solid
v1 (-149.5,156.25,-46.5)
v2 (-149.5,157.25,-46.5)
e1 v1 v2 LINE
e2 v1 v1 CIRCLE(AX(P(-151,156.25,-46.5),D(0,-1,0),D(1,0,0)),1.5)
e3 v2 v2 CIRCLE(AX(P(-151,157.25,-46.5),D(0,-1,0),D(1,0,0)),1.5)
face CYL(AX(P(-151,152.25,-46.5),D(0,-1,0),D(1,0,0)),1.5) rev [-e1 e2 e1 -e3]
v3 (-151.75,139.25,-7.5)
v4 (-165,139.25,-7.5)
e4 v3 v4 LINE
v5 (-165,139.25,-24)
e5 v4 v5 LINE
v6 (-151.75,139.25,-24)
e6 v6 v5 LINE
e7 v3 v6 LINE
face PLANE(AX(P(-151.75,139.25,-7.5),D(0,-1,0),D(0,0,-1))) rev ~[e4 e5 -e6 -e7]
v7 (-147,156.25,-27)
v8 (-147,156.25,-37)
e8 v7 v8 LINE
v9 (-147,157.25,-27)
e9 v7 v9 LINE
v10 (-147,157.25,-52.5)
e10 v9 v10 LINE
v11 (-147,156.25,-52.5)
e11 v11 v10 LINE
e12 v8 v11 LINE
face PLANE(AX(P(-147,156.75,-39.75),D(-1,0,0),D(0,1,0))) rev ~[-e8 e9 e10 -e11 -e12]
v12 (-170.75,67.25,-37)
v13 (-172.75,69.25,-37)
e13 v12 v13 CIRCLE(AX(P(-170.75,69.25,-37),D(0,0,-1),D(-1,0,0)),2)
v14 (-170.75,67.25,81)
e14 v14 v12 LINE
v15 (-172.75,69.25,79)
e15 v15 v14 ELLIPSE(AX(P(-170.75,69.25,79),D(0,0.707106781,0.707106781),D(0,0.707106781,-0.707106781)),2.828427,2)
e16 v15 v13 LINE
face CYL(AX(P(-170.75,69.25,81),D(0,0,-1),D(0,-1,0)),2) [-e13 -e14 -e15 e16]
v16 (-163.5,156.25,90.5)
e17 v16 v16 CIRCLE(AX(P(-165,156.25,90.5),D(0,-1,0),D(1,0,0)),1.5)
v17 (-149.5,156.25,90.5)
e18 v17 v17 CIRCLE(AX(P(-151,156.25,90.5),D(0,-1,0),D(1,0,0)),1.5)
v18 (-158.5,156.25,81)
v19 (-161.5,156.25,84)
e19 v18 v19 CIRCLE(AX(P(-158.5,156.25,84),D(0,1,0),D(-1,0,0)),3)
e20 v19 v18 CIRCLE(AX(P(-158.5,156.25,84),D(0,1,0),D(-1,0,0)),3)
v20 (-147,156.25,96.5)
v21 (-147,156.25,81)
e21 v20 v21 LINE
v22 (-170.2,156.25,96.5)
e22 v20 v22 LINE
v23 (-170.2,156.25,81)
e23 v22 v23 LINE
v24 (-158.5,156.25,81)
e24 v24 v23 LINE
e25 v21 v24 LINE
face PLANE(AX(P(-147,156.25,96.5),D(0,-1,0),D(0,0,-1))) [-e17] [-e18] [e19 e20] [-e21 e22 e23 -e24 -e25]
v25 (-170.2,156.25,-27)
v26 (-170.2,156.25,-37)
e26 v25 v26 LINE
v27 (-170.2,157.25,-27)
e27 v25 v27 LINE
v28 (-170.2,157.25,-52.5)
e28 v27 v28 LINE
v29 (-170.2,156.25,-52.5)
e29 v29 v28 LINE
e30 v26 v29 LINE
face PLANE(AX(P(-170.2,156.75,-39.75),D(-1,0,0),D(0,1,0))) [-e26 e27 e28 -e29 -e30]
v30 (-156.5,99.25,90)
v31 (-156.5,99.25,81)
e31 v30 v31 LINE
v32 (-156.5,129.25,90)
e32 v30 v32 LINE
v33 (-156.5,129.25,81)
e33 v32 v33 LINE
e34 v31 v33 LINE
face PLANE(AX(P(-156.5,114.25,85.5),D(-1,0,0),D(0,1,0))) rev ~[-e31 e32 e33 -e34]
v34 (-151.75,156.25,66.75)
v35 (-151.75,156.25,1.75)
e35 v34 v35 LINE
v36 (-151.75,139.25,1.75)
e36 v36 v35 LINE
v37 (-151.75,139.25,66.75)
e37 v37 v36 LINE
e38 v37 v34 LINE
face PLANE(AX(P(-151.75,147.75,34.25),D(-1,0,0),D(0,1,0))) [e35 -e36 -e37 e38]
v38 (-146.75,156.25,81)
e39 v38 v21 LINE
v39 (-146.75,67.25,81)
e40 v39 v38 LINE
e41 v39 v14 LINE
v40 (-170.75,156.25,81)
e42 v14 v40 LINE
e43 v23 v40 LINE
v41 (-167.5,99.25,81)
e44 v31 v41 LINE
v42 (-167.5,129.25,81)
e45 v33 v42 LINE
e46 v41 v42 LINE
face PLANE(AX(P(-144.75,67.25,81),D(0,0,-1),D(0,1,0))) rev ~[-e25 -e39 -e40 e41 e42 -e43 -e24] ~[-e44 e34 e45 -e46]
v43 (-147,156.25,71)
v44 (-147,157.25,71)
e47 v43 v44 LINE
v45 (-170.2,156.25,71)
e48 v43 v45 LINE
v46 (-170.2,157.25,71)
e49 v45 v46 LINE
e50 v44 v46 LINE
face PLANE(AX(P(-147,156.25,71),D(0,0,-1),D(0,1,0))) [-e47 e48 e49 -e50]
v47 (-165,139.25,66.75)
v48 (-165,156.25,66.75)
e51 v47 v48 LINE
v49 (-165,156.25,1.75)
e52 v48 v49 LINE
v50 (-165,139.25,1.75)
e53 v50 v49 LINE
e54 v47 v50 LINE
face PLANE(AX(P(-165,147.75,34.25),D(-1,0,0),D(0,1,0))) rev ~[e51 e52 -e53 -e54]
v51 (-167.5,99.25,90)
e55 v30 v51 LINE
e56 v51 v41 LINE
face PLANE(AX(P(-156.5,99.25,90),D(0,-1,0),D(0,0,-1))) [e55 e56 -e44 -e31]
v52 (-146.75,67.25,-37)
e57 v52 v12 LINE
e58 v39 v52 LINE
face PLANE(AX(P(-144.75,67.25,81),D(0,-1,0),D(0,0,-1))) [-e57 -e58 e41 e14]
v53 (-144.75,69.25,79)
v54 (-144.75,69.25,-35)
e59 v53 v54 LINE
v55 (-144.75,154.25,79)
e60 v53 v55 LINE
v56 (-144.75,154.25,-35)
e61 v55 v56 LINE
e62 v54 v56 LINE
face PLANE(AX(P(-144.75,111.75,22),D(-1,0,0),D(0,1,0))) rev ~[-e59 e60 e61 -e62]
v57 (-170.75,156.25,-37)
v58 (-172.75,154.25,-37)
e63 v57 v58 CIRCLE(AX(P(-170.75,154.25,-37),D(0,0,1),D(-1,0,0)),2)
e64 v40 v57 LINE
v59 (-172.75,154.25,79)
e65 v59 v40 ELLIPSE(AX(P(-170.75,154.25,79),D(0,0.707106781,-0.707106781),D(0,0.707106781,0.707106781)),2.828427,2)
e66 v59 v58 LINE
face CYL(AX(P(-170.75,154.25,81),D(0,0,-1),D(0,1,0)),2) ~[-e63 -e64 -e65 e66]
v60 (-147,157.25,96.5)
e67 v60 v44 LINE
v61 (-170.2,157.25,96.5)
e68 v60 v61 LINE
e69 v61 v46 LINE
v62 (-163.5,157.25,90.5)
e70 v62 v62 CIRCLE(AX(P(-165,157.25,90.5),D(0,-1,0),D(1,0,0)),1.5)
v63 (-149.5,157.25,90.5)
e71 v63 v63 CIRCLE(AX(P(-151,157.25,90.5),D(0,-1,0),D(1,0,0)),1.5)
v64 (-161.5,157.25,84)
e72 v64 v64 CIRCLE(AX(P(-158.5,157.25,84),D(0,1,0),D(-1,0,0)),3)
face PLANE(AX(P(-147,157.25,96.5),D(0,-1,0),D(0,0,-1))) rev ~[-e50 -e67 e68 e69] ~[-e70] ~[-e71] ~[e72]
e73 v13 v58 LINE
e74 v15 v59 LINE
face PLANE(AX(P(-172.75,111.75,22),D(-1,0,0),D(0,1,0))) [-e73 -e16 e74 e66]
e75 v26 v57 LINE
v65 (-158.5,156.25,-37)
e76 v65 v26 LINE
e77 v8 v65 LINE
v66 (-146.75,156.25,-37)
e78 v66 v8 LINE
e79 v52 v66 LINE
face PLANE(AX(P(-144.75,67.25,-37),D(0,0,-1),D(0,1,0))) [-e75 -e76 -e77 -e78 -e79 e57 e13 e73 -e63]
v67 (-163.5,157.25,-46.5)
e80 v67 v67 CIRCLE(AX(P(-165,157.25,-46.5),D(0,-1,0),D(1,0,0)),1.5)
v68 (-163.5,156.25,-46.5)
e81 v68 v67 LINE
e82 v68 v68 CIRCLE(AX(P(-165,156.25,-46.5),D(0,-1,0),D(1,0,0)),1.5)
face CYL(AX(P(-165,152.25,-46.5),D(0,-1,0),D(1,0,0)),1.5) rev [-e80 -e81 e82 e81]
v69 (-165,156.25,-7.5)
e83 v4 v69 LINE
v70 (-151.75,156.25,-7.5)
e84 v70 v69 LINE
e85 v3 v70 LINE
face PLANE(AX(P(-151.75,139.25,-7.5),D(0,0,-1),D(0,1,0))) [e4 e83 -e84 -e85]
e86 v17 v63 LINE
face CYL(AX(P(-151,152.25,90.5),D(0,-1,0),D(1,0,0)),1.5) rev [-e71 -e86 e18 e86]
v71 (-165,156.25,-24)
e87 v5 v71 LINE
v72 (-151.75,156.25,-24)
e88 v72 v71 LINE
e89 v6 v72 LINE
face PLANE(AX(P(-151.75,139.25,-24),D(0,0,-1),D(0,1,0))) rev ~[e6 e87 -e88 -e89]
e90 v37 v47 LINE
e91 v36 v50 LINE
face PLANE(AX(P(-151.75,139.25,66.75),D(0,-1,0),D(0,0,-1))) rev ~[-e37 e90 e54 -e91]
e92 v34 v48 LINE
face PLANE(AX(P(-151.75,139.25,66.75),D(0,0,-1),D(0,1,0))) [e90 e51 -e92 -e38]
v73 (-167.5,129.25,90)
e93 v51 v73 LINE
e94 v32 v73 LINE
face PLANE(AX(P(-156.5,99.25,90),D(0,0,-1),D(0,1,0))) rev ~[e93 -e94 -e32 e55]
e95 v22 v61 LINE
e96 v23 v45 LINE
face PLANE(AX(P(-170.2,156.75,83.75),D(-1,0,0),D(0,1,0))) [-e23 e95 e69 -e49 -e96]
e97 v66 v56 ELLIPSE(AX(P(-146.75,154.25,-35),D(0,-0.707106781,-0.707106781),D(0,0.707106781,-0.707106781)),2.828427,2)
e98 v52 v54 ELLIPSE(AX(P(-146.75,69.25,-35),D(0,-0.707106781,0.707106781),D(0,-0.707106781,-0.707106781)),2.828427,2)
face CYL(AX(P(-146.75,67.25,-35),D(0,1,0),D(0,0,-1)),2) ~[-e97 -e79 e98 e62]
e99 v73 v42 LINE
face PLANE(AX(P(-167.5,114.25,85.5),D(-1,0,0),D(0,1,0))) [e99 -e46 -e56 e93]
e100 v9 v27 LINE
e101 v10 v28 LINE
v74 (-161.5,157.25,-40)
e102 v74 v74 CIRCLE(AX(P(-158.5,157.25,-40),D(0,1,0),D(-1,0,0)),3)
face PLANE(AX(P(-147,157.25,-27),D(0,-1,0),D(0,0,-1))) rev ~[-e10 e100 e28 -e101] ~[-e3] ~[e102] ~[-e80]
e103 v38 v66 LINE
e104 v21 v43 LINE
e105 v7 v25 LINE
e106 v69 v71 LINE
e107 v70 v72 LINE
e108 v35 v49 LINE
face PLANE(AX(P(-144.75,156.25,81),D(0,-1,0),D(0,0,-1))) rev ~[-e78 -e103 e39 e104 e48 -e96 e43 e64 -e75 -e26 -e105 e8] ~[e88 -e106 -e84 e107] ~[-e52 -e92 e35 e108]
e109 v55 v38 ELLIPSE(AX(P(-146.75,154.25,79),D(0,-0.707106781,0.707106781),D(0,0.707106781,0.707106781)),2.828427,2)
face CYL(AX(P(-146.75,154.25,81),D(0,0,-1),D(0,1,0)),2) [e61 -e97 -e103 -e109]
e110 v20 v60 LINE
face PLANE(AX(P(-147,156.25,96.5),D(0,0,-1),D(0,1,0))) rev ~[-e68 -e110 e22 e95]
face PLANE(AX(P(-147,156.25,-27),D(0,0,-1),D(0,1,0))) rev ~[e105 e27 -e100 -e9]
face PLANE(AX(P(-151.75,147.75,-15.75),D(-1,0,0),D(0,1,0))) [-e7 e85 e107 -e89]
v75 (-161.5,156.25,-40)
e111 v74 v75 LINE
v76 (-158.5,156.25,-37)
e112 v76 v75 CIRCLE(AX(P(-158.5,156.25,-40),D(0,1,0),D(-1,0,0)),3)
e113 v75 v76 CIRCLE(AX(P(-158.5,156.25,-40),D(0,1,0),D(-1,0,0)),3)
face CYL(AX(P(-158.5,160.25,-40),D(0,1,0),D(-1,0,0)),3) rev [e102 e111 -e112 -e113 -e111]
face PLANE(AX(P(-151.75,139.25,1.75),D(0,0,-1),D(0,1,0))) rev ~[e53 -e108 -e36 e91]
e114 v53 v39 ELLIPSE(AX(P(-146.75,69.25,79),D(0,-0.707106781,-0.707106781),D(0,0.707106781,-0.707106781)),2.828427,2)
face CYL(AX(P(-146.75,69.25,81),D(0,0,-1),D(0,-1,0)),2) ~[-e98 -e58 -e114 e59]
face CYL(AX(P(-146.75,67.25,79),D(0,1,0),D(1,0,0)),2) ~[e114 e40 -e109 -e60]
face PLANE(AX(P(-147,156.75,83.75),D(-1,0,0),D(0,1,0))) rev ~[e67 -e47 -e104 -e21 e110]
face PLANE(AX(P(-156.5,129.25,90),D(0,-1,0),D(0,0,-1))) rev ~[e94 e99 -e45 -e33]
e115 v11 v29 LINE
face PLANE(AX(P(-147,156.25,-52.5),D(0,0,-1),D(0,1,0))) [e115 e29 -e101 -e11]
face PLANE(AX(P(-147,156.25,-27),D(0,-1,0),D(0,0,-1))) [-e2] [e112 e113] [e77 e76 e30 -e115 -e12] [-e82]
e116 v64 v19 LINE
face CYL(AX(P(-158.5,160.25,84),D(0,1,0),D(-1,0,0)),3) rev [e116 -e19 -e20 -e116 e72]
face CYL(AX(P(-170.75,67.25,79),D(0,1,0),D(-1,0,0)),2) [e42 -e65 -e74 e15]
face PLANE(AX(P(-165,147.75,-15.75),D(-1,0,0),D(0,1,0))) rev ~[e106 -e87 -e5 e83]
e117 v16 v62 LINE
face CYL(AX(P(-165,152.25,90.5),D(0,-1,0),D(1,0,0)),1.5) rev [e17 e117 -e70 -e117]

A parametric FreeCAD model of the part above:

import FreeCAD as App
import Part
import Sketcher


def edges_at(feature, points):
    """Names of the edges that pass closest to the given points."""
    edges = feature.Shape.Edges
    near = lambda p: min(range(len(edges)), key=lambda i: edges[i].distToShape(Part.Vertex(*p))[0])
    return sorted({f"Edge{near(p) + 1}" for p in points})

doc = App.newDocument("Part")
body = doc.addObject("PartDesign::Body", "Body")

sketch1 = body.newObject("Sketcher::SketchObject", "Sketch")
sketch1.AttachmentSupport = (doc.getObject("YZ_Plane"), [""])
sketch1.MapMode = "FlatFace"
sketch1.AttachmentOffset = App.Placement(App.Vector(0, 0, 85), App.Rotation())
sketch1.addGeometry(Part.Circle(App.Vector(-9.5, 20.2, 0), App.Vector(0, 0, 1), 1.5), False)
sketch1.addConstraint([
    Sketcher.Constraint("Diameter", 0, 3.0),
    Sketcher.Constraint("DistanceX", 0, 3, -1, 1, 9.5),
    Sketcher.Constraint("DistanceY", -1, 1, 0, 3, 20.25),
])
pad1 = body.newObject("PartDesign::Pad", "Pad")
pad1.Profile = sketch1
pad1.Length = 10
body2 = doc.addObject("PartDesign::Body", "Body001")

sketch2 = body2.newObject("Sketcher::SketchObject", "Sketch001")
sketch2.AttachmentSupport = (doc.getObject("YZ_Plane001"), [""])
sketch2.MapMode = "FlatFace"
sketch2.AttachmentOffset = App.Placement(App.Vector(0, 0, 85), App.Rotation())
sketch2.addGeometry(Part.Circle(App.Vector(127.5, 6.2, 0), App.Vector(0, 0, 1), 1.5), False)
sketch2.addConstraint([
    Sketcher.Constraint("Diameter", 0, 3.0),
    Sketcher.Constraint("DistanceX", -1, 1, 0, 3, 127.5),
    Sketcher.Constraint("DistanceY", -1, 1, 0, 3, 6.25),
])
pad2 = body2.newObject("PartDesign::Pad", "Pad001")
pad2.Profile = sketch2
pad2.Length = 10
body3 = doc.addObject("PartDesign::Body", "Body002")

sketch3 = body3.newObject("Sketcher::SketchObject", "Sketch002")
sketch3.AttachmentSupport = (doc.getObject("YZ_Plane002"), [""])
sketch3.MapMode = "FlatFace"
sketch3.AttachmentOffset = App.Placement(App.Vector(0, 0, 85), App.Rotation())
sketch3.addGeometry(Part.Circle(App.Vector(127.5, 20.2, 0), App.Vector(0, 0, 1), 1.5), False)
sketch3.addConstraint([
    Sketcher.Constraint("Diameter", 0, 3.0),
    Sketcher.Constraint("DistanceX", -1, 1, 0, 3, 127.5),
    Sketcher.Constraint("DistanceY", -1, 1, 0, 3, 20.25),
])
pad3 = body3.newObject("PartDesign::Pad", "Pad002")
pad3.Profile = sketch3
pad3.Length = 10
body4 = doc.addObject("PartDesign::Body", "Body003")
body4.AllowCompound = True

sketch4 = body4.newObject("Sketcher::SketchObject", "Sketch003")
sketch4.AttachmentSupport = (doc.getObject("YZ_Plane003"), [""])
sketch4.MapMode = "FlatFace"
sketch4.AttachmentOffset = App.Placement(App.Vector(0, 0, 85), App.Rotation())
sketch4.addGeometry(Part.Circle(App.Vector(-9.5, 6.2, 0), App.Vector(0, 0, 1), 1.5), False)
sketch4.addConstraint([
    Sketcher.Constraint("Diameter", 0, 3.0),
    Sketcher.Constraint("DistanceX", 0, 3, -1, 1, 9.5),
    Sketcher.Constraint("DistanceY", -1, 1, 0, 3, 6.25),
])
pad4 = body4.newObject("PartDesign::Pad", "Pad003")
pad4.Profile = sketch4
pad4.Length = 10
doc.recompute()

boolean = body4.newObject("PartDesign::Boolean", "Boolean")
boolean.Type = "Fuse"
boolean.addObjects([body])
doc.recompute()

boolean2 = body4.newObject("PartDesign::Boolean", "Boolean001")
boolean2.Type = "Fuse"
boolean2.addObjects([body2])
doc.recompute()

boolean3 = body4.newObject("PartDesign::Boolean", "Boolean002")
boolean3.Type = "Fuse"
boolean3.addObjects([body3])
body5 = doc.addObject("PartDesign::Body", "Body004")

sketch5 = body5.newObject("Sketcher::SketchObject", "Sketch004")
sketch5.AttachmentSupport = (doc.getObject("YZ_Plane004"), [""])
sketch5.MapMode = "FlatFace"
sketch5.AttachmentOffset = App.Placement(App.Vector(0, 0, 93), App.Rotation())
sketch5.addGeometry(Part.Circle(App.Vector(121, 4.5, 0), App.Vector(0, 0, 1), 3), False)
sketch5.addConstraint([
    Sketcher.Constraint("Diameter", 0, 6.0),
    Sketcher.Constraint("DistanceX", -1, 1, 0, 3, 121.0),
    Sketcher.Constraint("DistanceY", -1, 1, 0, 3, 4.5),
])
pad5 = body5.newObject("PartDesign::Pad", "Pad004")
pad5.Profile = sketch5
pad5.Length = 10
pad5.Reversed = True
body6 = doc.addObject("PartDesign::Body", "Body005")
body6.AllowCompound = True

sketch6 = body6.newObject("Sketcher::SketchObject", "Sketch005")
sketch6.AttachmentSupport = (doc.getObject("YZ_Plane005"), [""])
sketch6.MapMode = "FlatFace"
sketch6.AttachmentOffset = App.Placement(App.Vector(0, 0, 93), App.Rotation())
sketch6.addGeometry(Part.Circle(App.Vector(-3, 4.5, 0), App.Vector(0, 0, 1), 3), False)
sketch6.addConstraint([
    Sketcher.Constraint("Diameter", 0, 6.0),
    Sketcher.Constraint("DistanceX", 0, 3, -1, 1, 3.0),
    Sketcher.Constraint("DistanceY", -1, 1, 0, 3, 4.5),
])
pad6 = body6.newObject("PartDesign::Pad", "Pad005")
pad6.Profile = sketch6
pad6.Length = 10
pad6.Reversed = True
doc.recompute()

boolean4 = body6.newObject("PartDesign::Boolean", "Boolean003")
boolean4.Type = "Fuse"
boolean4.addObjects([body5])
body7 = doc.addObject("PartDesign::Body", "Body006")
body7.AllowCompound = True
doc.recompute()

body6.Placement = App.Placement(App.Vector(0, 0, 9.25), App.Rotation(App.Vector(0, 0, 1), 0))
boolean5 = body7.newObject("PartDesign::Boolean", "Boolean004")
boolean5.Type = "Fuse"
boolean5.addObjects([body6])
body8 = doc.addObject("PartDesign::Body", "Body007")

sketch7 = body8.newObject("Sketcher::SketchObject", "Sketch006")
sketch7.AttachmentSupport = (doc.getObject("XY_Plane007"), [""])
sketch7.MapMode = "FlatFace"
sketch7.AttachmentOffset = App.Placement(App.Vector(0, 0, 11.75), App.Rotation())
sketch7.addGeometry([
    Part.LineSegment(App.Vector(32, 0, 0), App.Vector(32, -9, 0)),
    Part.LineSegment(App.Vector(32, -9, 0), App.Vector(62, -9, 0)),
    Part.LineSegment(App.Vector(62, -9, 0), App.Vector(62, 0, 0)),
    Part.LineSegment(App.Vector(62, 0, 0), App.Vector(32, 0, 0)),
], False)
sketch7.addConstraint([
    Sketcher.Constraint("Coincident", 0, 2, 1, 1),
    Sketcher.Constraint("Coincident", 1, 2, 2, 1),
    Sketcher.Constraint("Coincident", 2, 2, 3, 1),
    Sketcher.Constraint("Coincident", 3, 2, 0, 1),
    Sketcher.Constraint("Vertical", 0),
    Sketcher.Constraint("Horizontal", 1),
    Sketcher.Constraint("Vertical", 2),
    Sketcher.Constraint("Horizontal", 3),
    Sketcher.Constraint("PointOnObject", 2, 2, -1),
    Sketcher.Constraint("DistanceX", 1, 1, 1, 2, 30.0),
    Sketcher.Constraint("DistanceY", 0, 2, 0, 1, 9.0),
    Sketcher.Constraint("DistanceX", -1, 1, 0, 2, 32.0),
])
pad7 = body8.newObject("PartDesign::Pad", "Pad006")
pad7.Profile = sketch7
pad7.Length = 11
body9 = doc.addObject("PartDesign::Body", "Body008")

sketch8 = body9.newObject("Sketcher::SketchObject", "Sketch007")
sketch8.AttachmentSupport = (doc.getObject("XY_Plane008"), [""])
sketch8.MapMode = "FlatFace"
sketch8.AttachmentOffset = App.Placement(App.Vector(0, 0, 2.25), App.Rotation())
sketch8.addGeometry([
    Part.LineSegment(App.Vector(89, 10, 0), App.Vector(89, -15.5, 0)),
    Part.LineSegment(App.Vector(89, -15.5, 0), App.Vector(90, -15.5, 0)),
    Part.LineSegment(App.Vector(90, -15.5, 0), App.Vector(90, 10, 0)),
    Part.LineSegment(App.Vector(90, 10, 0), App.Vector(89, 10, 0)),
], False)
sketch8.addConstraint([
    Sketcher.Constraint("Coincident", 0, 2, 1, 1),
    Sketcher.Constraint("Coincident", 1, 2, 2, 1),
    Sketcher.Constraint("Coincident", 2, 2, 3, 1),
    Sketcher.Constraint("Coincident", 3, 2, 0, 1),
    Sketcher.Constraint("Vertical", 0),
    Sketcher.Constraint("Horizontal", 1),
    Sketcher.Constraint("Vertical", 2),
    Sketcher.Constraint("Horizontal", 3),
    Sketcher.Constraint("DistanceX", 1, 1, 1, 2, 1.0),
    Sketcher.Constraint("DistanceY", 0, 2, 0, 1, 25.5),
    Sketcher.Constraint("DistanceX", -1, 1, 0, 2, 89.0),
    Sketcher.Constraint("DistanceY", -1, 1, 2, 2, 10.0),
])
pad8 = body9.newObject("PartDesign::Pad", "Pad007")
pad8.Profile = sketch8
pad8.Length = 23.2
body10 = doc.addObject("PartDesign::Body", "Body009")

sketch9 = body10.newObject("Sketcher::SketchObject", "Sketch008")
sketch9.AttachmentSupport = (doc.getObject("XY_Plane009"), [""])
sketch9.MapMode = "FlatFace"
sketch9.AttachmentOffset = App.Placement(App.Vector(0, 0, 2.25), App.Rotation())
sketch9.addGeometry([
    Part.LineSegment(App.Vector(89, 133.5, 0), App.Vector(89, 108, 0)),
    Part.LineSegment(App.Vector(89, 108, 0), App.Vector(90, 108, 0)),
    Part.LineSegment(App.Vector(90, 108, 0), App.Vector(90, 133.5, 0)),
    Part.LineSegment(App.Vector(90, 133.5, 0), App.Vector(89, 133.5, 0)),
], False)
sketch9.addConstraint([
    Sketcher.Constraint("Coincident", 0, 2, 1, 1),
    Sketcher.Constraint("Coincident", 1, 2, 2, 1),
    Sketcher.Constraint("Coincident", 2, 2, 3, 1),
    Sketcher.Constraint("Coincident", 3, 2, 0, 1),
    Sketcher.Constraint("Vertical", 0),
    Sketcher.Constraint("Horizontal", 1),
    Sketcher.Constraint("Vertical", 2),
    Sketcher.Constraint("Horizontal", 3),
    Sketcher.Constraint("DistanceX", 1, 1, 1, 2, 1.0),
    Sketcher.Constraint("DistanceY", 0, 2, 0, 1, 25.5),
    Sketcher.Constraint("DistanceX", -1, 1, 0, 2, 89.0),
    Sketcher.Constraint("DistanceY", -1, 1, 0, 2, 108.0),
])
pad9 = body10.newObject("PartDesign::Pad", "Pad008")
pad9.Profile = sketch9
pad9.Length = 23.2
body11 = doc.addObject("PartDesign::Body", "Body010")

sketch10 = body11.newObject("Sketcher::SketchObject", "Sketch009")
sketch10.AttachmentSupport = (doc.getObject("XY_Plane010"), [""])
sketch10.MapMode = "FlatFace"
sketch10.AttachmentOffset = App.Placement(App.Vector(0, 0, 7), App.Rotation())
sketch10.addGeometry([
    Part.LineSegment(App.Vector(72, 105, 0), App.Vector(72, 88, 0)),
    Part.LineSegment(App.Vector(72, 88, 0), App.Vector(89, 88, 0)),
    Part.LineSegment(App.Vector(89, 88, 0), App.Vector(89, 105, 0)),
    Part.LineSegment(App.Vector(89, 105, 0), App.Vector(72, 105, 0)),
], False)
sketch10.addConstraint([
    Sketcher.Constraint("Coincident", 0, 2, 1, 1),
    Sketcher.Constraint("Coincident", 1, 2, 2, 1),
    Sketcher.Constraint("Coincident", 2, 2, 3, 1),
    Sketcher.Constraint("Coincident", 3, 2, 0, 1),
    Sketcher.Constraint("Vertical", 0),
    Sketcher.Constraint("Horizontal", 1),
    Sketcher.Constraint("Vertical", 2),
    Sketcher.Constraint("Horizontal", 3),
    Sketcher.Constraint("DistanceX", 1, 1, 1, 2, 17.0),
    Sketcher.Constraint("DistanceY", 0, 2, 0, 1, 16.5),
    Sketcher.Constraint("DistanceX", -1, 1, 0, 2, 72.0),
    Sketcher.Constraint("DistanceY", -1, 1, 2, 2, 105.0),
])
pad10 = body11.newObject("PartDesign::Pad", "Pad009")
pad10.Profile = sketch10
pad10.Length = 13.25
body12 = doc.addObject("PartDesign::Body", "Body011")

sketch11 = body12.newObject("Sketcher::SketchObject", "Sketch010")
sketch11.AttachmentSupport = (doc.getObject("XY_Plane011"), [""])
sketch11.MapMode = "FlatFace"
sketch11.AttachmentOffset = App.Placement(App.Vector(0, 0, 7), App.Rotation())
sketch11.addGeometry([
    Part.LineSegment(App.Vector(72, 79, 0), App.Vector(72, 14, 0)),
    Part.LineSegment(App.Vector(72, 14, 0), App.Vector(89, 14, 0)),
    Part.LineSegment(App.Vector(89, 14, 0), App.Vector(89, 79, 0)),
    Part.LineSegment(App.Vector(89, 79, 0), App.Vector(72, 79, 0)),
], False)
sketch11.addConstraint([
    Sketcher.Constraint("Coincident", 0, 2, 1, 1),
    Sketcher.Constraint("Coincident", 1, 2, 2, 1),
    Sketcher.Constraint("Coincident", 2, 2, 3, 1),
    Sketcher.Constraint("Coincident", 3, 2, 0, 1),
    Sketcher.Constraint("Vertical", 0),
    Sketcher.Constraint("Horizontal", 1),
    Sketcher.Constraint("Vertical", 2),
    Sketcher.Constraint("Horizontal", 3),
    Sketcher.Constraint("DistanceX", 1, 1, 1, 2, 17.0),
    Sketcher.Constraint("DistanceY", 0, 2, 0, 1, 65.0),
    Sketcher.Constraint("DistanceX", -1, 1, 0, 2, 72.0),
    Sketcher.Constraint("DistanceY", -1, 1, 0, 2, 14.25),
])
pad11 = body12.newObject("PartDesign::Pad", "Pad010")
pad11.Profile = sketch11
pad11.Length = 13.25
body13 = doc.addObject("PartDesign::Body", "Body012")

sketch12 = body13.newObject("Sketcher::SketchObject", "Sketch011")
sketch12.AttachmentSupport = (doc.getObject("XY_Plane012"), [""])
sketch12.MapMode = "FlatFace"
sketch12.addGeometry([
    Part.LineSegment(App.Vector(0, 118, 0), App.Vector(0, 0, 0)),
    Part.LineSegment(App.Vector(0, 0, 0), App.Vector(89, 0, 0)),
    Part.LineSegment(App.Vector(89, 0, 0), App.Vector(89, 118, 0)),
    Part.LineSegment(App.Vector(89, 118, 0), App.Vector(0, 118, 0)),
], False)
sketch12.addConstraint([
    Sketcher.Constraint("Coincident", 0, 2, 1, 1),
    Sketcher.Constraint("Coincident", 1, 2, 2, 1),
    Sketcher.Constraint("Coincident", 2, 2, 3, 1),
    Sketcher.Constraint("Coincident", 3, 2, 0, 1),
    Sketcher.Constraint("Vertical", 0),
    Sketcher.Constraint("Horizontal", 1),
    Sketcher.Constraint("Vertical", 2),
    Sketcher.Constraint("Horizontal", 3),
    Sketcher.Constraint("Coincident", 0, 2, -1, 1),
    Sketcher.Constraint("DistanceX", 1, 1, 1, 2, 89.0),
    Sketcher.Constraint("DistanceY", 0, 2, 0, 1, 118.0),
])
pad12 = body13.newObject("PartDesign::Pad", "Pad011")
pad12.Profile = sketch12
pad12.Length = 28
doc.recompute()

boolean6 = body13.newObject("PartDesign::Boolean", "Boolean005")
boolean6.Type = "Cut"
boolean6.addObjects([body12])
doc.recompute()

boolean7 = body13.newObject("PartDesign::Boolean", "Boolean006")
boolean7.Type = "Cut"
boolean7.addObjects([body11])
doc.recompute()

boolean8 = body13.newObject("PartDesign::Boolean", "Boolean007")
boolean8.Type = "Fuse"
boolean8.addObjects([body8])
doc.recompute()

boolean9 = body13.newObject("PartDesign::Boolean", "Boolean008")
boolean9.Type = "Fuse"
boolean9.addObjects([body9])
doc.recompute()

boolean10 = body13.newObject("PartDesign::Boolean", "Boolean009")
boolean10.Type = "Fuse"
boolean10.addObjects([body10])
doc.recompute()

boolean11 = body13.newObject("PartDesign::Boolean", "Boolean010")
boolean11.Type = "Cut"
boolean11.addObjects([body7])
doc.recompute()

boolean12 = body13.newObject("PartDesign::Boolean", "Boolean011")
boolean12.Type = "Cut"
boolean12.addObjects([body4])
doc.recompute()

fillet = body13.newObject("PartDesign::Fillet", "Fillet")
fillet.Base = (boolean12, edges_at(boolean12, [
    (44.5, 0, 0),
    (44.5, 0, 28),
    (0, 59, 0),
    (44.5, 118, 0),
    (89, 59, 0),
    (89, 59, 28),
    (0, 59, 28),
]))
fillet.Radius = 2
body14 = doc.addObject("PartDesign::Body", "Body013")
doc.recompute()

body13.Placement = App.Placement(App.Vector(0, 0, 0), App.Rotation(App.Vector(1, 0, 0), 270))
boolean13 = body14.newObject("PartDesign::Boolean", "Boolean012")
boolean13.Type = "Fuse"
boolean13.addObjects([body13])
body15 = doc.addObject("PartDesign::Body", "Body014")
doc.recompute()

body14.Placement = App.Placement(App.Vector(-144.75, 67.25, 81), App.Rotation(App.Vector(0, 0, 1), 90))
boolean14 = body15.newObject("PartDesign::Boolean", "Boolean013")
boolean14.Type = "Fuse"
boolean14.addObjects([body14])

doc.recompute()
